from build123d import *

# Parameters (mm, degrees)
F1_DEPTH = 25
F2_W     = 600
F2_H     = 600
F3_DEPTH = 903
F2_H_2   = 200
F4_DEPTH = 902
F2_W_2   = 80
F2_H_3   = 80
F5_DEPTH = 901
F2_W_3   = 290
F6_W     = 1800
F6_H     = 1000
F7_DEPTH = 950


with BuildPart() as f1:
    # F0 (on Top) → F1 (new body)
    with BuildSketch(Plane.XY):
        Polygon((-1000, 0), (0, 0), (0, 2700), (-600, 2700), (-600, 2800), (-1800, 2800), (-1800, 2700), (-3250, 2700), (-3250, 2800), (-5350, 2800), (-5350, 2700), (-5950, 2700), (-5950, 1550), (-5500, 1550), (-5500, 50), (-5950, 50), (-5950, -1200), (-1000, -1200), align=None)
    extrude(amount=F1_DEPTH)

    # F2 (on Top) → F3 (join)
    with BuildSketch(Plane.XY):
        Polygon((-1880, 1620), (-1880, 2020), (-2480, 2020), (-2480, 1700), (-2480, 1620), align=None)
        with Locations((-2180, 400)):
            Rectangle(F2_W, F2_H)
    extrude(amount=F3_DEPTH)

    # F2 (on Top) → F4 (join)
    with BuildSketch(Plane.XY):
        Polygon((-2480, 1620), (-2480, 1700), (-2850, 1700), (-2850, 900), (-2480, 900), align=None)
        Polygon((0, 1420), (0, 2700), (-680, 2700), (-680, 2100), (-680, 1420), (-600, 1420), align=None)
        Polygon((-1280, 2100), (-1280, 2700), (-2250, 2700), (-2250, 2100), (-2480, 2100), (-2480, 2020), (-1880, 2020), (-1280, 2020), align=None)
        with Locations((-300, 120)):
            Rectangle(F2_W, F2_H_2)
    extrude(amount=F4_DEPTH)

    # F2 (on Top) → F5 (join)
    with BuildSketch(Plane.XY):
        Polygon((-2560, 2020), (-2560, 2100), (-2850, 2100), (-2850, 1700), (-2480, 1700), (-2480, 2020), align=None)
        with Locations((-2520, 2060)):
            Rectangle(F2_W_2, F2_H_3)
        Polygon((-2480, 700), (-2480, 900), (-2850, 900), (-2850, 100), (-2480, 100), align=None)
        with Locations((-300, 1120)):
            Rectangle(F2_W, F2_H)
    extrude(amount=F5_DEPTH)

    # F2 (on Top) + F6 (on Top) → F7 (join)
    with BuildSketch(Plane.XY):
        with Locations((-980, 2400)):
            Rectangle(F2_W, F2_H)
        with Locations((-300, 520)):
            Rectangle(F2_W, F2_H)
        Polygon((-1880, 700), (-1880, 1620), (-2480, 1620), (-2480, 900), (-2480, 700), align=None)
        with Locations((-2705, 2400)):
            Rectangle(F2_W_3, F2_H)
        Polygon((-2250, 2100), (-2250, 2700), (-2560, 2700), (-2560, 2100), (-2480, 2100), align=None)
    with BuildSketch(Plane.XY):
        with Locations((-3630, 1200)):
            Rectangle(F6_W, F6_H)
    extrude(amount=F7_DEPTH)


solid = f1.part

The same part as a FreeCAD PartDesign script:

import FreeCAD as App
import Part
import Sketcher
Q = App.Units.Quantity


def add_polygon(sketch, points):
    """Adds a closed chain of lines whose ends are joined by coincident constraints."""
    first, n = sketch.GeometryCount, len(points)
    for a, b in zip(points, points[1:] + points[:1]):
        sketch.addGeometry(Part.LineSegment(App.Vector(*a, 0), App.Vector(*b, 0)), False)
    for i in range(n):
        sketch.addConstraint(Sketcher.Constraint("Coincident", first + i, 2, first + (i + 1) % n, 1))

doc = App.newDocument("Part")
body = doc.addObject("PartDesign::Body", "Body")

sketch1 = body.newObject("Sketcher::SketchObject", "Sketch")
sketch1.AttachmentSupport = (doc.getObject("XY_Plane"), [""])
sketch1.MapMode = "FlatFace"
add_polygon(sketch1, [(-1000, 0), (0, 0), (0, 2700), (-600, 2700), (-600, 2800), (-1800, 2800), (-1800, 2700), (-3250, 2700), (-3250, 2800), (-5350, 2800), (-5350, 2700), (-5950, 2700), (-5950, 1550), (-5500, 1550), (-5500, 50), (-5950, 50), (-5950, -1200), (-1000, -1200)])
sketch1.addConstraint(Sketcher.Constraint("Horizontal", 0))
sketch1.addConstraint(Sketcher.Constraint("Vertical", 1))
sketch1.addConstraint(Sketcher.Constraint("Horizontal", 2))
sketch1.addConstraint(Sketcher.Constraint("Vertical", 3))
sketch1.addConstraint(Sketcher.Constraint("Horizontal", 4))
sketch1.addConstraint(Sketcher.Constraint("Vertical", 5))
sketch1.addConstraint(Sketcher.Constraint("Horizontal", 6))
sketch1.addConstraint(Sketcher.Constraint("Vertical", 7))
sketch1.addConstraint(Sketcher.Constraint("Horizontal", 8))
sketch1.addConstraint(Sketcher.Constraint("Vertical", 9))
sketch1.addConstraint(Sketcher.Constraint("Horizontal", 10))
sketch1.addConstraint(Sketcher.Constraint("Vertical", 11))
sketch1.addConstraint(Sketcher.Constraint("Horizontal", 12))
sketch1.addConstraint(Sketcher.Constraint("Vertical", 13))
sketch1.addConstraint(Sketcher.Constraint("Horizontal", 14))
sketch1.addConstraint(Sketcher.Constraint("Vertical", 15))
sketch1.addConstraint(Sketcher.Constraint("Horizontal", 16))
sketch1.addConstraint(Sketcher.Constraint("Vertical", 17))
sketch1.addConstraint(Sketcher.Constraint("Coincident", 0, 2, -1, 1))
sketch1.addConstraint(Sketcher.Constraint("Horizontal", 2, 2, 5, 2))
sketch1.addConstraint(Sketcher.Constraint("Horizontal", 4, 2, 7, 2))
sketch1.addConstraint(Sketcher.Constraint("Horizontal", 6, 2, 9, 2))
sketch1.addConstraint(Sketcher.Constraint("Vertical", 11, 2, 14, 2))
sketch1.addConstraint(Sketcher.Constraint("Equal", 2, 10))
sketch1.addConstraint(Sketcher.Constraint("Equal", 4, 17))
sketch1.addConstraint(Sketcher.Constraint("DistanceX", 0, 1, 0, 2, Q("1000 mm")))
sketch1.addConstraint(Sketcher.Constraint("DistanceX", 2, 2, 2, 1, Q("600 mm")))
sketch1.addConstraint(Sketcher.Constraint("DistanceX", 4, 2, 4, 1, Q("1200 mm")))
sketch1.addConstraint(Sketcher.Constraint("DistanceX", 6, 2, 6, 1, Q("1450 mm")))
sketch1.addConstraint(Sketcher.Constraint("DistanceX", 8, 2, 8, 1, Q("2100 mm")))
sketch1.addConstraint(Sketcher.Constraint("DistanceX", 12, 1, 12, 2, Q("450 mm")))
sketch1.addConstraint(Sketcher.Constraint("DistanceY", 1, 1, 1, 2, Q("2700 mm")))
sketch1.addConstraint(Sketcher.Constraint("DistanceY", 3, 1, 3, 2, Q("100 mm")))
sketch1.addConstraint(Sketcher.Constraint("DistanceY", 11, 2, 11, 1, Q("1150 mm")))
sketch1.addConstraint(Sketcher.Constraint("DistanceY", 13, 2, 13, 1, Q("1500 mm")))
pad1 = body.newObject("PartDesign::Pad", "Pad")
pad1.Profile = sketch1
pad1.Length = 25

sketch2 = body.newObject("Sketcher::SketchObject", "Sketch001")
sketch2.AttachmentSupport = (doc.getObject("XY_Plane"), [""])
sketch2.MapMode = "FlatFace"
add_polygon(sketch2, [(-1880, 1620), (-1880, 2020), (-2480, 2020), (-2480, 1620)])
add_polygon(sketch2, [(-2480, 700), (-2480, 100), (-1880, 100), (-1880, 700)])
sketch2.addConstraint(Sketcher.Constraint("Vertical", 0))
sketch2.addConstraint(Sketcher.Constraint("Horizontal", 1))
sketch2.addConstraint(Sketcher.Constraint("Vertical", 2))
sketch2.addConstraint(Sketcher.Constraint("Horizontal", 3))
sketch2.addConstraint(Sketcher.Constraint("Vertical", 4))
sketch2.addConstraint(Sketcher.Constraint("Horizontal", 5))
sketch2.addConstraint(Sketcher.Constraint("Vertical", 6))
sketch2.addConstraint(Sketcher.Constraint("Horizontal", 7))
sketch2.addConstraint(Sketcher.Constraint("Vertical", 2, 2, 4, 2))
sketch2.addConstraint(Sketcher.Constraint("Vertical", 3, 2, 5, 2))
sketch2.addConstraint(Sketcher.Constraint("Equal", 7, 4))
sketch2.addConstraint(Sketcher.Constraint("DistanceX", 1, 2, 1, 1, Q("600 mm")))
sketch2.addConstraint(Sketcher.Constraint("DistanceY", 0, 1, 0, 2, Q("400 mm")))
sketch2.addConstraint(Sketcher.Constraint("DistanceX", 0, 2, -1, 1, Q("1880 mm")))
sketch2.addConstraint(Sketcher.Constraint("DistanceY", -1, 1, 0, 2, Q("2020 mm")))
sketch2.addConstraint(Sketcher.Constraint("DistanceY", -1, 1, 4, 2, Q("100 mm")))
pad2 = body.newObject("PartDesign::Pad", "Pad001")
pad2.Profile = sketch2
pad2.Length = 903

sketch3 = body.newObject("Sketcher::SketchObject", "Sketch002")
sketch3.AttachmentSupport = (doc.getObject("XY_Plane"), [""])
sketch3.MapMode = "FlatFace"
add_polygon(sketch3, [(-2480, 1700), (-2850, 1700), (-2850, 900), (-2480, 900)])
add_polygon(sketch3, [(0, 1420), (0, 2700), (-680, 2700), (-680, 1420)])
add_polygon(sketch3, [(-1280, 2700), (-2250, 2700), (-2250, 2100), (-2480, 2100), (-2480, 2020), (-1280, 2020)])
add_polygon(sketch3, [(-600, 220), (-600, 20), (0, 20), (0, 220)])
sketch3.addConstraint(Sketcher.Constraint("Horizontal", 0))
sketch3.addConstraint(Sketcher.Constraint("Vertical", 1))
sketch3.addConstraint(Sketcher.Constraint("Horizontal", 2))
sketch3.addConstraint(Sketcher.Constraint("Vertical", 3))
sketch3.addConstraint(Sketcher.Constraint("Vertical", 4))
sketch3.addConstraint(Sketcher.Constraint("Horizontal", 5))
sketch3.addConstraint(Sketcher.Constraint("Vertical", 6))
sketch3.addConstraint(Sketcher.Constraint("Horizontal", 7))
sketch3.addConstraint(Sketcher.Constraint("Horizontal", 8))
sketch3.addConstraint(Sketcher.Constraint("Vertical", 9))
sketch3.addConstraint(Sketcher.Constraint("Horizontal", 10))
sketch3.addConstraint(Sketcher.Constraint("Vertical", 11))
sketch3.addConstraint(Sketcher.Constraint("Horizontal", 12))
sketch3.addConstraint(Sketcher.Constraint("Vertical", 13))
sketch3.addConstraint(Sketcher.Constraint("Vertical", 14))
sketch3.addConstraint(Sketcher.Constraint("Horizontal", 15))
sketch3.addConstraint(Sketcher.Constraint("Vertical", 16))
sketch3.addConstraint(Sketcher.Constraint("Horizontal", 17))
sketch3.addConstraint(Sketcher.Constraint("PointOnObject", 4, 2, -2))
sketch3.addConstraint(Sketcher.Constraint("PointOnObject", 15, 2, -2))
sketch3.addConstraint(Sketcher.Constraint("Horizontal", 5, 2, 8, 2))
sketch3.addConstraint(Sketcher.Constraint("Vertical", 3, 2, 10, 2))
sketch3.addConstraint(Sketcher.Constraint("Equal", 17, 9))
sketch3.addConstraint(Sketcher.Constraint("Equal", 7, 13))
sketch3.addConstraint(Sketcher.Constraint("DistanceX", 0, 2, 0, 1, Q("370 mm")))
sketch3.addConstraint(Sketcher.Constraint("DistanceX", 5, 2, 5, 1, Q("680 mm")))
sketch3.addConstraint(Sketcher.Constraint("DistanceX", 8, 2, 8, 1, Q("970 mm")))
sketch3.addConstraint(Sketcher.Constraint("DistanceX", 10, 2, 10, 1, Q("230 mm")))
sketch3.addConstraint(Sketcher.Constraint("DistanceX", 15, 1, 15, 2, Q("600 mm")))
sketch3.addConstraint(Sketcher.Constraint("DistanceY", 1, 2, 1, 1, Q("800 mm")))
sketch3.addConstraint(Sketcher.Constraint("DistanceY", 4, 1, 4, 2, Q("1280 mm")))
sketch3.addConstraint(Sketcher.Constraint("DistanceY", 14, 2, 14, 1, Q("200 mm")))
sketch3.addConstraint(Sketcher.Constraint("DistanceX", 0, 2, -1, 1, Q("2850 mm")))
sketch3.addConstraint(Sketcher.Constraint("DistanceY", -1, 1, 0, 2, Q("1700 mm")))
sketch3.addConstraint(Sketcher.Constraint("DistanceY", -1, 1, 4, 2, Q("2700 mm")))
sketch3.addConstraint(Sketcher.Constraint("DistanceY", -1, 1, 14, 2, Q("20 mm")))
pad3 = body.newObject("PartDesign::Pad", "Pad002")
pad3.Profile = sketch3
pad3.Length = 902

sketch4 = body.newObject("Sketcher::SketchObject", "Sketch003")
sketch4.AttachmentSupport = (doc.getObject("XY_Plane"), [""])
sketch4.MapMode = "FlatFace"
add_polygon(sketch4, [(-2850, 2100), (-2850, 1700), (-2480, 1700), (-2480, 2100)])
add_polygon(sketch4, [(-2480, 900), (-2850, 900), (-2850, 100), (-2480, 100)])
add_polygon(sketch4, [(-600, 1420), (-600, 820), (0, 820), (0, 1420)])
sketch4.addConstraint(Sketcher.Constraint("Vertical", 0))
sketch4.addConstraint(Sketcher.Constraint("Horizontal", 1))
sketch4.addConstraint(Sketcher.Constraint("Vertical", 2))
sketch4.addConstraint(Sketcher.Constraint("Horizontal", 3))
sketch4.addConstraint(Sketcher.Constraint("Horizontal", 4))
sketch4.addConstraint(Sketcher.Constraint("Vertical", 5))
sketch4.addConstraint(Sketcher.Constraint("Horizontal", 6))
sketch4.addConstraint(Sketcher.Constraint("Vertical", 7))
sketch4.addConstraint(Sketcher.Constraint("Vertical", 8))
sketch4.addConstraint(Sketcher.Constraint("Horizontal", 9))
sketch4.addConstraint(Sketcher.Constraint("Vertical", 10))
sketch4.addConstraint(Sketcher.Constraint("Horizontal", 11))
sketch4.addConstraint(Sketcher.Constraint("PointOnObject", 9, 2, -2))
sketch4.addConstraint(Sketcher.Constraint("Vertical", 3, 2, 4, 2))
sketch4.addConstraint(Sketcher.Constraint("Vertical", 2, 2, 6, 2))
sketch4.addConstraint(Sketcher.Constraint("Equal", 11, 8))
sketch4.addConstraint(Sketcher.Constraint("DistanceX", 1, 1, 1, 2, Q("370 mm")))
sketch4.addConstraint(Sketcher.Constraint("DistanceX", 9, 1, 9, 2, Q("600 mm")))
sketch4.addConstraint(Sketcher.Constraint("DistanceY", 0, 2, 0, 1, Q("400 mm")))
sketch4.addConstraint(Sketcher.Constraint("DistanceY", 5, 2, 5, 1, Q("800 mm")))
sketch4.addConstraint(Sketcher.Constraint("DistanceX", 0, 2, -1, 1, Q("2850 mm")))
sketch4.addConstraint(Sketcher.Constraint("DistanceY", -1, 1, 0, 2, Q("1700 mm")))
sketch4.addConstraint(Sketcher.Constraint("DistanceY", -1, 1, 4, 2, Q("900 mm")))
sketch4.addConstraint(Sketcher.Constraint("DistanceY", -1, 1, 8, 2, Q("820 mm")))
pad4 = body.newObject("PartDesign::Pad", "Pad003")
pad4.Profile = sketch4
pad4.Length = 901

sketch5 = body.newObject("Sketcher::SketchObject", "Sketch004")
sketch5.AttachmentSupport = (doc.getObject("XY_Plane"), [""])
sketch5.MapMode = "FlatFace"
add_polygon(sketch5, [(-1280, 2700), (-1280, 2100), (-680, 2100), (-680, 2700)])
add_polygon(sketch5, [(-600, 820), (-600, 220), (0, 220), (0, 820)])
add_polygon(sketch5, [(-1880, 700), (-1880, 1620), (-2480, 1620), (-2480, 700)])
add_polygon(sketch5, [(-2850, 2700), (-2850, 2100), (-2250, 2100), (-2250, 2700)])
add_polygon(sketch5, [(-4530, 1700), (-4530, 700), (-2730, 700), (-2730, 1700)])
sketch5.addConstraint(Sketcher.Constraint("Vertical", 0))
sketch5.addConstraint(Sketcher.Constraint("Horizontal", 1))
sketch5.addConstraint(Sketcher.Constraint("Vertical", 2))
sketch5.addConstraint(Sketcher.Constraint("Horizontal", 3))
sketch5.addConstraint(Sketcher.Constraint("Vertical", 4))
sketch5.addConstraint(Sketcher.Constraint("Horizontal", 5))
sketch5.addConstraint(Sketcher.Constraint("Vertical", 6))
sketch5.addConstraint(Sketcher.Constraint("Horizontal", 7))
sketch5.addConstraint(Sketcher.Constraint("Vertical", 8))
sketch5.addConstraint(Sketcher.Constraint("Horizontal", 9))
sketch5.addConstraint(Sketcher.Constraint("Vertical", 10))
sketch5.addConstraint(Sketcher.Constraint("Horizontal", 11))
sketch5.addConstraint(Sketcher.Constraint("Vertical", 12))
sketch5.addConstraint(Sketcher.Constraint("Horizontal", 13))
sketch5.addConstraint(Sketcher.Constraint("Vertical", 14))
sketch5.addConstraint(Sketcher.Constraint("Horizontal", 15))
sketch5.addConstraint(Sketcher.Constraint("Vertical", 16))
sketch5.addConstraint(Sketcher.Constraint("Horizontal", 17))
sketch5.addConstraint(Sketcher.Constraint("Vertical", 18))
sketch5.addConstraint(Sketcher.Constraint("Horizontal", 19))
sketch5.addConstraint(Sketcher.Constraint("PointOnObject", 5, 2, -2))
sketch5.addConstraint(Sketcher.Constraint("Horizontal", 1, 2, 12, 2))
sketch5.addConstraint(Sketcher.Constraint("Horizontal", 3, 2, 14, 2))
sketch5.addConstraint(Sketcher.Constraint("Horizontal", 11, 2, 16, 2))
sketch5.addConstraint(Sketcher.Constraint("Equal", 3, 5))
sketch5.addConstraint(Sketcher.Constraint("Equal", 7, 9))
sketch5.addConstraint(Sketcher.Constraint("Equal", 11, 13))
sketch5.addConstraint(Sketcher.Constraint("Equal", 15, 0))
sketch5.addConstraint(Sketcher.Constraint("Equal", 2, 4))
sketch5.addConstraint(Sketcher.Constraint("DistanceX", 1, 1, 1, 2, Q("600 mm")))
sketch5.addConstraint(Sketcher.Constraint("DistanceX", 17, 1, 17, 2, Q("1800 mm")))
sketch5.addConstraint(Sketcher.Constraint("DistanceY", 8, 1, 8, 2, Q("920 mm")))
sketch5.addConstraint(Sketcher.Constraint("DistanceY", 16, 2, 16, 1, Q("1000 mm")))
sketch5.addConstraint(Sketcher.Constraint("DistanceX", 0, 2, -1, 1, Q("1280 mm")))
sketch5.addConstraint(Sketcher.Constraint("DistanceY", -1, 1, 0, 2, Q("2100 mm")))
sketch5.addConstraint(Sketcher.Constraint("DistanceY", -1, 1, 4, 2, Q("220 mm")))
sketch5.addConstraint(Sketcher.Constraint("DistanceX", 8, 2, -1, 1, Q("1880 mm")))
sketch5.addConstraint(Sketcher.Constraint("DistanceY", -1, 1, 8, 2, Q("1620 mm")))
sketch5.addConstraint(Sketcher.Constraint("DistanceX", 12, 2, -1, 1, Q("2850 mm")))
sketch5.addConstraint(Sketcher.Constraint("DistanceX", 16, 2, -1, 1, Q("4530 mm")))
pad5 = body.newObject("PartDesign::Pad", "Pad004")
pad5.Profile = sketch5
pad5.Length = 950

doc.recompute()
